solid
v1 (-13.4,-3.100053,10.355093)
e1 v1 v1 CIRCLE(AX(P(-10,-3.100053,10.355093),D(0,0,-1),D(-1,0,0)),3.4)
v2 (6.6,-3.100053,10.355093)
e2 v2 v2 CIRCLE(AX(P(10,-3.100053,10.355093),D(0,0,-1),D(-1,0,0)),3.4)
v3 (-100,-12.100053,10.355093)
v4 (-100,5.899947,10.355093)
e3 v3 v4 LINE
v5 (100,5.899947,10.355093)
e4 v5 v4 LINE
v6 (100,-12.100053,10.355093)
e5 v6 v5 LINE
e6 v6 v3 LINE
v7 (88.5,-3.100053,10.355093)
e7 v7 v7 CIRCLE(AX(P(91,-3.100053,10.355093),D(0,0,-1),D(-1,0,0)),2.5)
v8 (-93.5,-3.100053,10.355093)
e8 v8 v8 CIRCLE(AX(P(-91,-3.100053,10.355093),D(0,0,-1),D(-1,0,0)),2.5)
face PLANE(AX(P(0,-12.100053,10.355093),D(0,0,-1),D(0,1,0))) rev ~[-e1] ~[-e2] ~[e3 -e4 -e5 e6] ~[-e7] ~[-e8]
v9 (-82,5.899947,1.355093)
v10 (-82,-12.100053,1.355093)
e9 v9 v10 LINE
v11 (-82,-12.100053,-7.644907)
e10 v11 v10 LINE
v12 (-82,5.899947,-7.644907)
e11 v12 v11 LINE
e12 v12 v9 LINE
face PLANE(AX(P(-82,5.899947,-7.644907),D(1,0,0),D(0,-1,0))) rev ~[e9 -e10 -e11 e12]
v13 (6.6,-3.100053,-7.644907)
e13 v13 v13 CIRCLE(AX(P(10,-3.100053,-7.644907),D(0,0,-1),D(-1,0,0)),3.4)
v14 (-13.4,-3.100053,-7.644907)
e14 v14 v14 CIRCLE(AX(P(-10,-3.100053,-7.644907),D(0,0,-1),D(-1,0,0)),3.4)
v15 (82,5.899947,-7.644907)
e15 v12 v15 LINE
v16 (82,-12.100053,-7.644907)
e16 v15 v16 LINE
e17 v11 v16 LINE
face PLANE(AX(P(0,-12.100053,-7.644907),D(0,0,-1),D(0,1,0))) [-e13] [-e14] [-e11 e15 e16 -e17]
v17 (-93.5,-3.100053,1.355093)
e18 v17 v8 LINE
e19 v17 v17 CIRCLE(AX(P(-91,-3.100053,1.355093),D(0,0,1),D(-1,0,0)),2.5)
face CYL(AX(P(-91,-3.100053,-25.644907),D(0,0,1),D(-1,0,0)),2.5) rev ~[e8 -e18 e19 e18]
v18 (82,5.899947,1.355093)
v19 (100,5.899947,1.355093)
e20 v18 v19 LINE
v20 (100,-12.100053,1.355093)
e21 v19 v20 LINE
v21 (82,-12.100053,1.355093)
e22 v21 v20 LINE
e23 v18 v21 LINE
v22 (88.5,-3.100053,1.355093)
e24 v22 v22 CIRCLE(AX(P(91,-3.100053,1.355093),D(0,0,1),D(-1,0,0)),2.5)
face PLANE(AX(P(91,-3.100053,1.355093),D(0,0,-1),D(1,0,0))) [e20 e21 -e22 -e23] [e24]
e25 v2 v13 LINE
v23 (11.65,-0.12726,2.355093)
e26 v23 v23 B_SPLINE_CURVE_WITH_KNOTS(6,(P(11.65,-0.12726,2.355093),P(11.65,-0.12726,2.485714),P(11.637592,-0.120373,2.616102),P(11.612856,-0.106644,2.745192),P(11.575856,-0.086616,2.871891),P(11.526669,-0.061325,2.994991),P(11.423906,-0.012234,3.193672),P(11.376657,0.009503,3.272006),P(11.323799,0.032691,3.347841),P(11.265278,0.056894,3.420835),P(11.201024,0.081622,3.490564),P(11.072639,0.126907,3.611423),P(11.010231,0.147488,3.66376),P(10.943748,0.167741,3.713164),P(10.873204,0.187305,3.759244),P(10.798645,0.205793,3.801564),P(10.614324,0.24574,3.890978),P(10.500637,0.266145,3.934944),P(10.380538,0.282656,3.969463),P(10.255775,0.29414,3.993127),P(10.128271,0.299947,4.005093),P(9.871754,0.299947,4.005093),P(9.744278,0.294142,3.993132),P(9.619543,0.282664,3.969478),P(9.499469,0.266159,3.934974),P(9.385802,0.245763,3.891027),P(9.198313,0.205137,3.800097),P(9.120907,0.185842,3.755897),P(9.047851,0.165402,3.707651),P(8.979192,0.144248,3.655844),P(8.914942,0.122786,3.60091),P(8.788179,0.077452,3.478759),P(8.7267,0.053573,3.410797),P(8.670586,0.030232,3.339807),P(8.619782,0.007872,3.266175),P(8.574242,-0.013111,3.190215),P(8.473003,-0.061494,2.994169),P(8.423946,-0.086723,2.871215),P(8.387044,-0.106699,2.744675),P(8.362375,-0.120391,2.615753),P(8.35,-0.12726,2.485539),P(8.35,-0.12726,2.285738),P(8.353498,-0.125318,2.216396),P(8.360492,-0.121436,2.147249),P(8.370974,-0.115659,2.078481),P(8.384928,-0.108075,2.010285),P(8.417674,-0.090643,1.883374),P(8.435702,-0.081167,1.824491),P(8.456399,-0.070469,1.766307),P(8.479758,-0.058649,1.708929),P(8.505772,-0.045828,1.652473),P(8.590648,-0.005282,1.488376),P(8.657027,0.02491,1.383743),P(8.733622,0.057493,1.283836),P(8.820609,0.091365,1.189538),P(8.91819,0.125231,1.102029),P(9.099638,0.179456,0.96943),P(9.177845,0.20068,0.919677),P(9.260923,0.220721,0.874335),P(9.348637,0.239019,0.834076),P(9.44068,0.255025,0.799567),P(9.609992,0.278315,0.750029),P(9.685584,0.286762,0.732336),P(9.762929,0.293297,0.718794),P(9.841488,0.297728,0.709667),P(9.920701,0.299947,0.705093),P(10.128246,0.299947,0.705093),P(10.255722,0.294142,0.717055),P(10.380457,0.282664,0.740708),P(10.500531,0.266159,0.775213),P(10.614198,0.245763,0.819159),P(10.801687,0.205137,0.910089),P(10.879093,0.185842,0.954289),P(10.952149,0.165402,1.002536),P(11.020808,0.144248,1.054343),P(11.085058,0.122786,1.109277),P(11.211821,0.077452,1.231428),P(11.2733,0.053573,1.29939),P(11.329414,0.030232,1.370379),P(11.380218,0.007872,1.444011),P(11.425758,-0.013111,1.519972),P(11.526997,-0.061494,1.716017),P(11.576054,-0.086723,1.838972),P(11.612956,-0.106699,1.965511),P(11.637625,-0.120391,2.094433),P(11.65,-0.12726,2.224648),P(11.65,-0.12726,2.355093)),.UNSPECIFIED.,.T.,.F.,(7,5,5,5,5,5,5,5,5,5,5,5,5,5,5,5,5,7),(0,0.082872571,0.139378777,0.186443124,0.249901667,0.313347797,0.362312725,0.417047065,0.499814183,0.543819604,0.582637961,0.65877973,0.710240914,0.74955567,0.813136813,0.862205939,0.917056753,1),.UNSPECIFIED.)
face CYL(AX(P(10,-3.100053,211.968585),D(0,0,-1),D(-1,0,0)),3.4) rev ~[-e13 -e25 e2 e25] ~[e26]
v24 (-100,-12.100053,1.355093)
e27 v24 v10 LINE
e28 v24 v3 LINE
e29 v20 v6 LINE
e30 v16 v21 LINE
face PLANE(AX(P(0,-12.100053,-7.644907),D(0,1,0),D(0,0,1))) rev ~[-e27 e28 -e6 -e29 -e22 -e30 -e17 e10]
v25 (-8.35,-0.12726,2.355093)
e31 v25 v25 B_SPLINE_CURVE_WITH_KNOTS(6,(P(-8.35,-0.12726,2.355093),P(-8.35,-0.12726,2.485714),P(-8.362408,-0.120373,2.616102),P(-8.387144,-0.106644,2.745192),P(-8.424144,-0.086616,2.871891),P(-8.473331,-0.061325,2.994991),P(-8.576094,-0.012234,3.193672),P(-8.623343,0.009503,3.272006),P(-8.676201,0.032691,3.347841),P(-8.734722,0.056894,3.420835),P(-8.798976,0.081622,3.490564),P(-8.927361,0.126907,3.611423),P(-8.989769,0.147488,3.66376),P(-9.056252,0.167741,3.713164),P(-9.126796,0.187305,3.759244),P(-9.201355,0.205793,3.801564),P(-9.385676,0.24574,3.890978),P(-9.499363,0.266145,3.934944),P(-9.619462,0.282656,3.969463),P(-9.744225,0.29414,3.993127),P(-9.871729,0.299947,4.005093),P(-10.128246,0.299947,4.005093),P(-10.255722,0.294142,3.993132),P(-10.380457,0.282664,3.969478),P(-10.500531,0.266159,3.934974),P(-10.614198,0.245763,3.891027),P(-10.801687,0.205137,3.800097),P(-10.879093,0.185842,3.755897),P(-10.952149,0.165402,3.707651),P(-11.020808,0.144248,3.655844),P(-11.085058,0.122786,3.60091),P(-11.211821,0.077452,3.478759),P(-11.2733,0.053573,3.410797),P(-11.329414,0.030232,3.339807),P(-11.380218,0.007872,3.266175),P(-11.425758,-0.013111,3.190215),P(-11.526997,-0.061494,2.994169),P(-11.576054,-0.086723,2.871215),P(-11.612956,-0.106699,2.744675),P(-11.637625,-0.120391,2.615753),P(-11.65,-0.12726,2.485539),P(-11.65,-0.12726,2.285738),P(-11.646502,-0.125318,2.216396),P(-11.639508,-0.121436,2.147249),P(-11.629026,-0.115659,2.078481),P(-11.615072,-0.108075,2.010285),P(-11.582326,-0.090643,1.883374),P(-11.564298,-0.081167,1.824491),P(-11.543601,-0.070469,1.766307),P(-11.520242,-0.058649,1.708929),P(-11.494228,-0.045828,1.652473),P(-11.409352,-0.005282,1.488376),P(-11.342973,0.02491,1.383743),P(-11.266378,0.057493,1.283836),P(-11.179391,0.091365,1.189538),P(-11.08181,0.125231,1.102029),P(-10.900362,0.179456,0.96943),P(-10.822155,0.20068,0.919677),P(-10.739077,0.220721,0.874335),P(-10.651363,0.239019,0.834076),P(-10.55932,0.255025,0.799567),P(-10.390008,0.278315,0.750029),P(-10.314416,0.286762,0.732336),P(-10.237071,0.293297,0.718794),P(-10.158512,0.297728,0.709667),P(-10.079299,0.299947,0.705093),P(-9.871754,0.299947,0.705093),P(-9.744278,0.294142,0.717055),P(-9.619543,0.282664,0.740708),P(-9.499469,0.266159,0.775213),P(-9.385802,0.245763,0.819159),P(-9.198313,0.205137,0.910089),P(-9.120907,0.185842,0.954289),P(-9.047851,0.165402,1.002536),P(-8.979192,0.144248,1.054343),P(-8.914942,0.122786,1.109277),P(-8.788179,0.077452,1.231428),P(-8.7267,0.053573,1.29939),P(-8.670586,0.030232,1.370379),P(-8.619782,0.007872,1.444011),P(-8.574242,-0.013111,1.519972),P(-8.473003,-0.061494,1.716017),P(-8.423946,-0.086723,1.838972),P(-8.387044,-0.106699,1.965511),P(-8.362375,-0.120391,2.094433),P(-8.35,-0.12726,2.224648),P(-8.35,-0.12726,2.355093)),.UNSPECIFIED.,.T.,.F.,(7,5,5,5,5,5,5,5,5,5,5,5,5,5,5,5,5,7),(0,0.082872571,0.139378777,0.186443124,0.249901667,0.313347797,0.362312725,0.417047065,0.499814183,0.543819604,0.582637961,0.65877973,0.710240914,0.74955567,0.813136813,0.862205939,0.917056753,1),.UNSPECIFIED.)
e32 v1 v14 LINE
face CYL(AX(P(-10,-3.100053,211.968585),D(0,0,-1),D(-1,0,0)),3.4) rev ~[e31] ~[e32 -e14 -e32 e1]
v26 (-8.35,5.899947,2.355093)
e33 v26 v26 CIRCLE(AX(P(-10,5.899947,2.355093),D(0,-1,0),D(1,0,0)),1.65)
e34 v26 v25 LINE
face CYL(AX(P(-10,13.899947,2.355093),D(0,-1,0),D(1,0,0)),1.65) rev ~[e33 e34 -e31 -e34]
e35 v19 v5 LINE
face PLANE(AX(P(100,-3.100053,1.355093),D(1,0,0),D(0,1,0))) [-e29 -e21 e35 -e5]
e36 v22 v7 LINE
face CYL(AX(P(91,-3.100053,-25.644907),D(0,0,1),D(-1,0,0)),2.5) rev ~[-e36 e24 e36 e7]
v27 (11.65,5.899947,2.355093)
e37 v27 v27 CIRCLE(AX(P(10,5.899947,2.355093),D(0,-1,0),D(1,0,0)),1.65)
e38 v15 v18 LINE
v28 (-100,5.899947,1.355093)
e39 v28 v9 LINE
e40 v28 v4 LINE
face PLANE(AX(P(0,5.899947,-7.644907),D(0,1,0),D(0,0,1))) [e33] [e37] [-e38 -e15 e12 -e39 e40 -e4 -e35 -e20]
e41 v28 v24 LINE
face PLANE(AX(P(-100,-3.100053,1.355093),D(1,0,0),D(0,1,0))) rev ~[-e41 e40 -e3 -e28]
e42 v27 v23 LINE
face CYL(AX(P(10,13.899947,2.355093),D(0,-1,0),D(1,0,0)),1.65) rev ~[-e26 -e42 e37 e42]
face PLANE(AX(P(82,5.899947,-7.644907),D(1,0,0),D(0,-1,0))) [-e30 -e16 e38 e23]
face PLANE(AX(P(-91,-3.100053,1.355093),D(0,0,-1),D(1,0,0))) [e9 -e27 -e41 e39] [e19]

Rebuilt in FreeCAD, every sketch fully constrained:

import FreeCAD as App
import Part
import Sketcher


def add_polygon(sketch, points):
    """Adds a closed chain of lines whose ends are joined by coincident constraints."""
    first, n = sketch.GeometryCount, len(points)
    for a, b in zip(points, points[1:] + points[:1]):
        sketch.addGeometry(Part.LineSegment(App.Vector(*a, 0), App.Vector(*b, 0)), False)
    for i in range(n):
        sketch.addConstraint(Sketcher.Constraint("Coincident", first + i, 2, first + (i + 1) % n, 1))

doc = App.newDocument("Part")
body = doc.addObject("PartDesign::Body", "Body")

sketch1 = body.newObject("Sketcher::SketchObject", "Sketch")
sketch1.AttachmentSupport = (doc.getObject("YZ_Plane"), [""])
sketch1.MapMode = "FlatFace"
add_polygon(sketch1, [(-12, 10), (-12, -8), (6, -8), (6, 10)])
sketch1.addConstraint(Sketcher.Constraint("Vertical", 0))
sketch1.addConstraint(Sketcher.Constraint("Horizontal", 1))
sketch1.addConstraint(Sketcher.Constraint("Vertical", 2))
sketch1.addConstraint(Sketcher.Constraint("Horizontal", 3))
sketch1.addConstraint(Sketcher.Constraint("Equal", 3, 0))
sketch1.addConstraint(Sketcher.Constraint("DistanceX", 1, 1, 1, 2, 18.0))
sketch1.addConstraint(Sketcher.Constraint("DistanceX", 0, 2, -1, 1, 12.100053))
sketch1.addConstraint(Sketcher.Constraint("DistanceY", 0, 2, -1, 1, 7.644907))
pad1 = body.newObject("PartDesign::Pad", "Pad")
pad1.Profile = sketch1
pad1.Length = 200
pad1.Midplane = True

sketch2 = body.newObject("Sketcher::SketchObject", "Sketch001")
sketch2.AttachmentSupport = (doc.getObject("XY_Plane"), [""])
sketch2.MapMode = "FlatFace"
sketch2.AttachmentOffset = App.Placement(App.Vector(0, 0, 10.355093), App.Rotation())
sketch2.addGeometry(Part.Circle(App.Vector(-10, -3.1, 0), App.Vector(0, 0, 1), 3.4), False)
sketch2.addGeometry(Part.Circle(App.Vector(10, -3.1, 0), App.Vector(0, 0, 1), 3.4), False)
sketch2.addConstraint(Sketcher.Constraint("Equal", 0, 1))
sketch2.addConstraint(Sketcher.Constraint("Symmetric", 0, 3, 1, 3, -2))
sketch2.addConstraint(Sketcher.Constraint("Diameter", 0, 6.8))
sketch2.addConstraint(Sketcher.Constraint("DistanceX", 0, 3, -1, 1, 10.0))
sketch2.addConstraint(Sketcher.Constraint("DistanceY", 0, 3, -1, 1, 3.100053))
doc.recompute()
hole = body.newObject("PartDesign::Hole", "Hole")
hole.Profile = sketch2
hole.ThreadType = "None"
hole.Diameter = 6.8
hole.DepthType = "ThroughAll"

sketch3 = body.newObject("Sketcher::SketchObject", "Sketch002")
sketch3.AttachmentSupport = (doc.getObject("XZ_Plane"), [""])
sketch3.MapMode = "FlatFace"
sketch3.AttachmentOffset = App.Placement(App.Vector(0, 0, -5.899947), App.Rotation())
sketch3.addGeometry(Part.Circle(App.Vector(10, 2.4, 0), App.Vector(0, 0, 1), 1.6), False)
sketch3.addGeometry(Part.Circle(App.Vector(-10, 2.4, 0), App.Vector(0, 0, 1), 1.6), False)
sketch3.addConstraint(Sketcher.Constraint("Equal", 0, 1))
sketch3.addConstraint(Sketcher.Constraint("Symmetric", 0, 3, 1, 3, -2))
sketch3.addConstraint(Sketcher.Constraint("Diameter", 0, 3.3))
sketch3.addConstraint(Sketcher.Constraint("DistanceX", -1, 1, 0, 3, 10.0))
sketch3.addConstraint(Sketcher.Constraint("DistanceY", -1, 1, 0, 3, 2.355093))
doc.recompute()
hole2 = body.newObject("PartDesign::Hole", "Hole001")
hole2.Profile = sketch3
hole2.ThreadType = "None"
hole2.Diameter = 3.3
hole2.DepthType = "Dimension"
hole2.Depth = 8
hole2.DrillPoint = "Angled"
hole2.DrillPointAngle = 118
hole2.Reversed = True

sketch4 = body.newObject("Sketcher::SketchObject", "Sketch003")
sketch4.AttachmentSupport = (doc.getObject("XY_Plane"), [""])
sketch4.MapMode = "FlatFace"
sketch4.AttachmentOffset = App.Placement(App.Vector(0, 0, -7.644907), App.Rotation())
sketch4.addGeometry(Part.Circle(App.Vector(91, -3.1, 0), App.Vector(0, 0, 1), 2.5), False)
sketch4.addGeometry(Part.Circle(App.Vector(-91, -3.1, 0), App.Vector(0, 0, 1), 2.5), False)
sketch4.addConstraint(Sketcher.Constraint("Equal", 0, 1))
sketch4.addConstraint(Sketcher.Constraint("Symmetric", 0, 3, 1, 3, -2))
sketch4.addConstraint(Sketcher.Constraint("Diameter", 0, 5.0))
sketch4.addConstraint(Sketcher.Constraint("DistanceX", -1, 1, 0, 3, 91.0))
sketch4.addConstraint(Sketcher.Constraint("DistanceY", 0, 3, -1, 1, 3.100053))
doc.recompute()
hole3 = body.newObject("PartDesign::Hole", "Hole002")
hole3.Profile = sketch4
hole3.ThreadType = "None"
hole3.Diameter = 5
hole3.DepthType = "Dimension"
hole3.Depth = 18
hole3.DrillPoint = "Angled"
hole3.DrillPointAngle = 118
hole3.Reversed = True

sketch5 = body.newObject("Sketcher::SketchObject", "Sketch004")
sketch5.AttachmentSupport = (doc.getObject("XY_Plane"), [""])
sketch5.MapMode = "FlatFace"
sketch5.AttachmentOffset = App.Placement(App.Vector(0, 0, -7.644907), App.Rotation())
add_polygon(sketch5, [(-100, -12), (-100, 6), (-82, 6), (-82, -12)])
add_polygon(sketch5, [(82, -12), (82, 6), (100, 6), (100, -12)])
sketch5.addConstraint(Sketcher.Constraint("Vertical", 0))
sketch5.addConstraint(Sketcher.Constraint("Horizontal", 1))
sketch5.addConstraint(Sketcher.Constraint("Vertical", 2))
sketch5.addConstraint(Sketcher.Constraint("Horizontal", 3))
sketch5.addConstraint(Sketcher.Constraint("Vertical", 4))
sketch5.addConstraint(Sketcher.Constraint("Horizontal", 5))
sketch5.addConstraint(Sketcher.Constraint("Vertical", 6))
sketch5.addConstraint(Sketcher.Constraint("Horizontal", 7))
sketch5.addConstraint(Sketcher.Constraint("Symmetric", 1, 2, 4, 2, -2))
sketch5.addConstraint(Sketcher.Constraint("Symmetric", 3, 2, 6, 2, -2))
sketch5.addConstraint(Sketcher.Constraint("Equal", 7, 0))
sketch5.addConstraint(Sketcher.Constraint("DistanceX", 1, 1, 1, 2, 18.0))
sketch5.addConstraint(Sketcher.Constraint("DistanceX", 0, 2, -1, 1, 100.0))
sketch5.addConstraint(Sketcher.Constraint("DistanceY", -1, 1, 0, 2, 5.899947))
pocket1 = body.newObject("PartDesign::Pocket", "Pocket")
pocket1.Profile = sketch5
pocket1.Length = 9
pocket1.Reversed = True

doc.recompute()
